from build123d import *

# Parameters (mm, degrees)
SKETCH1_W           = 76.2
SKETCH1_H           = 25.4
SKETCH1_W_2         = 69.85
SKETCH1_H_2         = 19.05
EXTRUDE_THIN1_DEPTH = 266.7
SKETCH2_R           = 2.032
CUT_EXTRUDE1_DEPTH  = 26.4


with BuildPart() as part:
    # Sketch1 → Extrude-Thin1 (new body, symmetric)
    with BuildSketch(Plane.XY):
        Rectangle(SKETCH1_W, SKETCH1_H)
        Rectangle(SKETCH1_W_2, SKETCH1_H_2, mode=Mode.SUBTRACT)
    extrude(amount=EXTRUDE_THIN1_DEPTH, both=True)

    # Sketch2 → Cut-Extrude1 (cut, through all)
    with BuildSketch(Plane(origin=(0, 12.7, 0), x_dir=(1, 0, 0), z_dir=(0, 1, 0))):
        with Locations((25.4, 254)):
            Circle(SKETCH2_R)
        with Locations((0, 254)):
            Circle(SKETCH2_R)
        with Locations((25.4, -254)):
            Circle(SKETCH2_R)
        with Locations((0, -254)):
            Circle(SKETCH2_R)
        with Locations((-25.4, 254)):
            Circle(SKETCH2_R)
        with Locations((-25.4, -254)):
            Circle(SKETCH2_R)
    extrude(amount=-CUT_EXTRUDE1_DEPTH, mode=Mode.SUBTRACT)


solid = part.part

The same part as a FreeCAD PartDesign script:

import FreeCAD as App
import Part
import Sketcher
Q = App.Units.Quantity


def add_polygon(sketch, points):
    """Adds a closed chain of lines whose ends are joined by coincident constraints."""
    first, n = sketch.GeometryCount, len(points)
    for a, b in zip(points, points[1:] + points[:1]):
        sketch.addGeometry(Part.LineSegment(App.Vector(*a, 0), App.Vector(*b, 0)), False)
    for i in range(n):
        sketch.addConstraint(Sketcher.Constraint("Coincident", first + i, 2, first + (i + 1) % n, 1))

doc = App.newDocument("Part")
body = doc.addObject("PartDesign::Body", "Body")

# Sketch on XY plane
sketch1 = doc.addObject("Sketcher::SketchObject", "Sketch")
body.addObject(sketch1)
sketch1.AttachmentSupport = (doc.XY_Plane, [""])
sketch1.MapMode = "FlatFace"
add_polygon(sketch1, [(-38, 13), (-38, -13), (38, -13), (38, 13)])  # lines 0-3
add_polygon(sketch1, [(35, -10), (-35, -10), (-35, 10), (35, 10)])  # lines 4-7
sketch1.addConstraint([
    Sketcher.Constraint("Vertical", 0),
    Sketcher.Constraint("Horizontal", 1),
    Sketcher.Constraint("Vertical", 2),
    Sketcher.Constraint("Horizontal", 3),
    Sketcher.Constraint("Horizontal", 4),
    Sketcher.Constraint("Vertical", 5),
    Sketcher.Constraint("Horizontal", 6),
    Sketcher.Constraint("Vertical", 7),
    Sketcher.Constraint("Symmetric", 0, 2, 2, 2, -1, 1),
    Sketcher.Constraint("Symmetric", 4, 2, 6, 2, -1, 1),
    Sketcher.Constraint("DistanceX", 1, 1, 1, 2, Q("3 in")),
    Sketcher.Constraint("DistanceY", 0, 2, 0, 1, Q("1 in")),
    Sketcher.Constraint("DistanceX", 4, 2, 4, 1, Q("2.75 in")),
    Sketcher.Constraint("DistanceY", 5, 1, 5, 2, Q("0.75 in")),
])
pad1 = doc.addObject("PartDesign::Pad", "Pad")
body.addObject(pad1)
pad1.Profile = sketch1
pad1.Length = Q("21 in")
pad1.Midplane = True

# Sketch on XZ plane
sketch2 = doc.addObject("Sketcher::SketchObject", "Sketch001")
body.addObject(sketch2)
sketch2.AttachmentSupport = (doc.XZ_Plane, [""])
sketch2.MapMode = "FlatFace"
sketch2.AttachmentOffset = App.Placement(App.Vector(0, 0, -0.5 * 25.4), App.Rotation())
sketch2.addGeometry([
    Part.Circle(App.Vector(25.4, -254, 0), App.Vector(0, 0, 1), 2),  # 0
    Part.Circle(App.Vector(0, -254, 0), App.Vector(0, 0, 1), 2),  # 1
    Part.Circle(App.Vector(25.4, 254, 0), App.Vector(0, 0, 1), 2),  # 2
    Part.Circle(App.Vector(0, 254, 0), App.Vector(0, 0, 1), 2),  # 3
    Part.Circle(App.Vector(-25.4, -254, 0), App.Vector(0, 0, 1), 2),  # 4
    Part.Circle(App.Vector(-25.4, 254, 0), App.Vector(0, 0, 1), 2),  # 5
], False)
sketch2.addConstraint([
    Sketcher.Constraint("Equal", 0, 1),
    Sketcher.Constraint("Equal", 1, 2),
    Sketcher.Constraint("Equal", 2, 3),
    Sketcher.Constraint("Equal", 3, 4),
    Sketcher.Constraint("Equal", 4, 5),
    Sketcher.Constraint("Symmetric", 1, 3, 3, 3, -1, 1),
    Sketcher.Constraint("Symmetric", 2, 3, 4, 3, -1, 1),
    Sketcher.Constraint("Symmetric", 0, 3, 5, 3, -1, 1),
    Sketcher.Constraint("Symmetric", 0, 3, 4, 3, -2),
    Sketcher.Constraint("PointOnObject", 1, 3, -2),
    Sketcher.Constraint("Horizontal", 0, 3, 1, 3),
    Sketcher.Constraint("Diameter", 0, Q("0.16 in")),
    Sketcher.Constraint("DistanceX", -1, 1, 0, 3, Q("1 in")),
    Sketcher.Constraint("DistanceY", 0, 3, -1, 1, Q("10 in")),
])
pocket1 = doc.addObject("PartDesign::Pocket", "Pocket")
body.addObject(pocket1)
pocket1.Profile = sketch2
pocket1.Type = "ThroughAll"
pocket1.Reversed = True

doc.recompute()
